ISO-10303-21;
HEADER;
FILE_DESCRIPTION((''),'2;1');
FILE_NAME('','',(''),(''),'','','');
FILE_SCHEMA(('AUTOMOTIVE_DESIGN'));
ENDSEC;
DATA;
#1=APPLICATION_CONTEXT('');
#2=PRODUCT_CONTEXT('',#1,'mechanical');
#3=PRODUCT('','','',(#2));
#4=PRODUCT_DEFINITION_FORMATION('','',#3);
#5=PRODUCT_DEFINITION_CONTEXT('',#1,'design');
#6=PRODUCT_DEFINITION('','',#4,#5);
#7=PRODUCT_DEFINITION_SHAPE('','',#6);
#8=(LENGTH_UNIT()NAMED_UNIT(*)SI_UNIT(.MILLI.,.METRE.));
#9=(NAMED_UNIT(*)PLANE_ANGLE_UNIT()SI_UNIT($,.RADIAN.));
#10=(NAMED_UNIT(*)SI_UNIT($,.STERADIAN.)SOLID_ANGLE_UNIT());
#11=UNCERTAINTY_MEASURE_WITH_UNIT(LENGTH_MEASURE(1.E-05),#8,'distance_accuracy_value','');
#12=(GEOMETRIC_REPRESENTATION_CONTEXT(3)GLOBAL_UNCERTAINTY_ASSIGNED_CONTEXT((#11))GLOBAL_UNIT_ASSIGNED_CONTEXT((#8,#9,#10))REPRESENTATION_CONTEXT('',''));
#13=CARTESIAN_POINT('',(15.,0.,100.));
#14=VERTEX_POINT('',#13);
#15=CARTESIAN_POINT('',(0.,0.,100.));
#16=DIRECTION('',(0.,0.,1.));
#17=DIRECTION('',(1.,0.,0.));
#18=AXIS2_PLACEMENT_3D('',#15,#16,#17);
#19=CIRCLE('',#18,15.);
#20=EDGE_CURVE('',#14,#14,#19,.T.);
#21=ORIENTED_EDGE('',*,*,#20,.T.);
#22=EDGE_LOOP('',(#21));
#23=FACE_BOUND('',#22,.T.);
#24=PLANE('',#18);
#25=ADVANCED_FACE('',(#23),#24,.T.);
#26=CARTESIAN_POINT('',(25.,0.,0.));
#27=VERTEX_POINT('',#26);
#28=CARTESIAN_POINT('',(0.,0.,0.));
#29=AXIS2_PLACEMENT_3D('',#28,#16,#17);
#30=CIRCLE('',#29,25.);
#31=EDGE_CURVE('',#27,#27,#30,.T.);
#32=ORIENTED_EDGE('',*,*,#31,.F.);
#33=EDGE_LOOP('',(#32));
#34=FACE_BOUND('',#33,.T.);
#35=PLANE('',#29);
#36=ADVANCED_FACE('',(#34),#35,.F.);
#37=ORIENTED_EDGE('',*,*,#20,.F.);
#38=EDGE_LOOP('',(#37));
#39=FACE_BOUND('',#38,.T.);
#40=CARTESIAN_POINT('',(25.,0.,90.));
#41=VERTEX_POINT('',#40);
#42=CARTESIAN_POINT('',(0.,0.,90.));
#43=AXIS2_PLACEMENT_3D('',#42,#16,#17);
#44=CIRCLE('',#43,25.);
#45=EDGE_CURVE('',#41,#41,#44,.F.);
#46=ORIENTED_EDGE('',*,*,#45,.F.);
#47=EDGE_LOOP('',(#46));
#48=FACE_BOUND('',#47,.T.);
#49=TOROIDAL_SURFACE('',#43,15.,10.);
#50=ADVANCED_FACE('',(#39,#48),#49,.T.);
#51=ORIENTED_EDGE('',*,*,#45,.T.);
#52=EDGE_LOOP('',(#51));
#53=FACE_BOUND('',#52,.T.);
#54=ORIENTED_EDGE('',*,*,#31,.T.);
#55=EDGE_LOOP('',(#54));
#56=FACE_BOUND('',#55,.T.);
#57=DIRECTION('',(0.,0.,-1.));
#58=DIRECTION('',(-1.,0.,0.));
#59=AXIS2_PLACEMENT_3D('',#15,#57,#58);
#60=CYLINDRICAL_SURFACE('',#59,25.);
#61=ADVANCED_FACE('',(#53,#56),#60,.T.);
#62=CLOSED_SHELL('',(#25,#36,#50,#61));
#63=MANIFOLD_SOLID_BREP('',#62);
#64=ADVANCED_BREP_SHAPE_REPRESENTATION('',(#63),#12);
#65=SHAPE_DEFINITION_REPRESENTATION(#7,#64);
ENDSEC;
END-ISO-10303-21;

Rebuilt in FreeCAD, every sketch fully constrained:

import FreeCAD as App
import Part
import Sketcher
Q = App.Units.Quantity


def edges_at(feature, points):
    """Names of the edges that pass closest to the given points."""
    edges = feature.Shape.Edges
    near = lambda p: min(range(len(edges)), key=lambda i: edges[i].distToShape(Part.Vertex(*p))[0])
    return sorted({f"Edge{near(p) + 1}" for p in points})

doc = App.newDocument("Part")
body = doc.addObject("PartDesign::Body", "Body")

# Sketch on XY plane
sketch1 = doc.addObject("Sketcher::SketchObject", "Sketch")
body.addObject(sketch1)
sketch1.AttachmentSupport = (doc.XY_Plane, [""])
sketch1.MapMode = "FlatFace"
sketch1.addGeometry(Part.Circle(App.Vector(0, 0, 0), App.Vector(0, 0, 1), 25), False)
sketch1.addConstraint([
    Sketcher.Constraint("Coincident", 0, 3, -1, 1),
    Sketcher.Constraint("Diameter", 0, Q("50 mm")),
])
pad1 = doc.addObject("PartDesign::Pad", "Pad")
body.addObject(pad1)
pad1.Profile = sketch1
pad1.Length = 100
doc.recompute()

fillet = doc.addObject("PartDesign::Fillet", "Fillet")
body.addObject(fillet)
fillet.Base = (pad1, edges_at(pad1, [(-25, 0, 100)]))
fillet.Radius = 10

doc.recompute()
